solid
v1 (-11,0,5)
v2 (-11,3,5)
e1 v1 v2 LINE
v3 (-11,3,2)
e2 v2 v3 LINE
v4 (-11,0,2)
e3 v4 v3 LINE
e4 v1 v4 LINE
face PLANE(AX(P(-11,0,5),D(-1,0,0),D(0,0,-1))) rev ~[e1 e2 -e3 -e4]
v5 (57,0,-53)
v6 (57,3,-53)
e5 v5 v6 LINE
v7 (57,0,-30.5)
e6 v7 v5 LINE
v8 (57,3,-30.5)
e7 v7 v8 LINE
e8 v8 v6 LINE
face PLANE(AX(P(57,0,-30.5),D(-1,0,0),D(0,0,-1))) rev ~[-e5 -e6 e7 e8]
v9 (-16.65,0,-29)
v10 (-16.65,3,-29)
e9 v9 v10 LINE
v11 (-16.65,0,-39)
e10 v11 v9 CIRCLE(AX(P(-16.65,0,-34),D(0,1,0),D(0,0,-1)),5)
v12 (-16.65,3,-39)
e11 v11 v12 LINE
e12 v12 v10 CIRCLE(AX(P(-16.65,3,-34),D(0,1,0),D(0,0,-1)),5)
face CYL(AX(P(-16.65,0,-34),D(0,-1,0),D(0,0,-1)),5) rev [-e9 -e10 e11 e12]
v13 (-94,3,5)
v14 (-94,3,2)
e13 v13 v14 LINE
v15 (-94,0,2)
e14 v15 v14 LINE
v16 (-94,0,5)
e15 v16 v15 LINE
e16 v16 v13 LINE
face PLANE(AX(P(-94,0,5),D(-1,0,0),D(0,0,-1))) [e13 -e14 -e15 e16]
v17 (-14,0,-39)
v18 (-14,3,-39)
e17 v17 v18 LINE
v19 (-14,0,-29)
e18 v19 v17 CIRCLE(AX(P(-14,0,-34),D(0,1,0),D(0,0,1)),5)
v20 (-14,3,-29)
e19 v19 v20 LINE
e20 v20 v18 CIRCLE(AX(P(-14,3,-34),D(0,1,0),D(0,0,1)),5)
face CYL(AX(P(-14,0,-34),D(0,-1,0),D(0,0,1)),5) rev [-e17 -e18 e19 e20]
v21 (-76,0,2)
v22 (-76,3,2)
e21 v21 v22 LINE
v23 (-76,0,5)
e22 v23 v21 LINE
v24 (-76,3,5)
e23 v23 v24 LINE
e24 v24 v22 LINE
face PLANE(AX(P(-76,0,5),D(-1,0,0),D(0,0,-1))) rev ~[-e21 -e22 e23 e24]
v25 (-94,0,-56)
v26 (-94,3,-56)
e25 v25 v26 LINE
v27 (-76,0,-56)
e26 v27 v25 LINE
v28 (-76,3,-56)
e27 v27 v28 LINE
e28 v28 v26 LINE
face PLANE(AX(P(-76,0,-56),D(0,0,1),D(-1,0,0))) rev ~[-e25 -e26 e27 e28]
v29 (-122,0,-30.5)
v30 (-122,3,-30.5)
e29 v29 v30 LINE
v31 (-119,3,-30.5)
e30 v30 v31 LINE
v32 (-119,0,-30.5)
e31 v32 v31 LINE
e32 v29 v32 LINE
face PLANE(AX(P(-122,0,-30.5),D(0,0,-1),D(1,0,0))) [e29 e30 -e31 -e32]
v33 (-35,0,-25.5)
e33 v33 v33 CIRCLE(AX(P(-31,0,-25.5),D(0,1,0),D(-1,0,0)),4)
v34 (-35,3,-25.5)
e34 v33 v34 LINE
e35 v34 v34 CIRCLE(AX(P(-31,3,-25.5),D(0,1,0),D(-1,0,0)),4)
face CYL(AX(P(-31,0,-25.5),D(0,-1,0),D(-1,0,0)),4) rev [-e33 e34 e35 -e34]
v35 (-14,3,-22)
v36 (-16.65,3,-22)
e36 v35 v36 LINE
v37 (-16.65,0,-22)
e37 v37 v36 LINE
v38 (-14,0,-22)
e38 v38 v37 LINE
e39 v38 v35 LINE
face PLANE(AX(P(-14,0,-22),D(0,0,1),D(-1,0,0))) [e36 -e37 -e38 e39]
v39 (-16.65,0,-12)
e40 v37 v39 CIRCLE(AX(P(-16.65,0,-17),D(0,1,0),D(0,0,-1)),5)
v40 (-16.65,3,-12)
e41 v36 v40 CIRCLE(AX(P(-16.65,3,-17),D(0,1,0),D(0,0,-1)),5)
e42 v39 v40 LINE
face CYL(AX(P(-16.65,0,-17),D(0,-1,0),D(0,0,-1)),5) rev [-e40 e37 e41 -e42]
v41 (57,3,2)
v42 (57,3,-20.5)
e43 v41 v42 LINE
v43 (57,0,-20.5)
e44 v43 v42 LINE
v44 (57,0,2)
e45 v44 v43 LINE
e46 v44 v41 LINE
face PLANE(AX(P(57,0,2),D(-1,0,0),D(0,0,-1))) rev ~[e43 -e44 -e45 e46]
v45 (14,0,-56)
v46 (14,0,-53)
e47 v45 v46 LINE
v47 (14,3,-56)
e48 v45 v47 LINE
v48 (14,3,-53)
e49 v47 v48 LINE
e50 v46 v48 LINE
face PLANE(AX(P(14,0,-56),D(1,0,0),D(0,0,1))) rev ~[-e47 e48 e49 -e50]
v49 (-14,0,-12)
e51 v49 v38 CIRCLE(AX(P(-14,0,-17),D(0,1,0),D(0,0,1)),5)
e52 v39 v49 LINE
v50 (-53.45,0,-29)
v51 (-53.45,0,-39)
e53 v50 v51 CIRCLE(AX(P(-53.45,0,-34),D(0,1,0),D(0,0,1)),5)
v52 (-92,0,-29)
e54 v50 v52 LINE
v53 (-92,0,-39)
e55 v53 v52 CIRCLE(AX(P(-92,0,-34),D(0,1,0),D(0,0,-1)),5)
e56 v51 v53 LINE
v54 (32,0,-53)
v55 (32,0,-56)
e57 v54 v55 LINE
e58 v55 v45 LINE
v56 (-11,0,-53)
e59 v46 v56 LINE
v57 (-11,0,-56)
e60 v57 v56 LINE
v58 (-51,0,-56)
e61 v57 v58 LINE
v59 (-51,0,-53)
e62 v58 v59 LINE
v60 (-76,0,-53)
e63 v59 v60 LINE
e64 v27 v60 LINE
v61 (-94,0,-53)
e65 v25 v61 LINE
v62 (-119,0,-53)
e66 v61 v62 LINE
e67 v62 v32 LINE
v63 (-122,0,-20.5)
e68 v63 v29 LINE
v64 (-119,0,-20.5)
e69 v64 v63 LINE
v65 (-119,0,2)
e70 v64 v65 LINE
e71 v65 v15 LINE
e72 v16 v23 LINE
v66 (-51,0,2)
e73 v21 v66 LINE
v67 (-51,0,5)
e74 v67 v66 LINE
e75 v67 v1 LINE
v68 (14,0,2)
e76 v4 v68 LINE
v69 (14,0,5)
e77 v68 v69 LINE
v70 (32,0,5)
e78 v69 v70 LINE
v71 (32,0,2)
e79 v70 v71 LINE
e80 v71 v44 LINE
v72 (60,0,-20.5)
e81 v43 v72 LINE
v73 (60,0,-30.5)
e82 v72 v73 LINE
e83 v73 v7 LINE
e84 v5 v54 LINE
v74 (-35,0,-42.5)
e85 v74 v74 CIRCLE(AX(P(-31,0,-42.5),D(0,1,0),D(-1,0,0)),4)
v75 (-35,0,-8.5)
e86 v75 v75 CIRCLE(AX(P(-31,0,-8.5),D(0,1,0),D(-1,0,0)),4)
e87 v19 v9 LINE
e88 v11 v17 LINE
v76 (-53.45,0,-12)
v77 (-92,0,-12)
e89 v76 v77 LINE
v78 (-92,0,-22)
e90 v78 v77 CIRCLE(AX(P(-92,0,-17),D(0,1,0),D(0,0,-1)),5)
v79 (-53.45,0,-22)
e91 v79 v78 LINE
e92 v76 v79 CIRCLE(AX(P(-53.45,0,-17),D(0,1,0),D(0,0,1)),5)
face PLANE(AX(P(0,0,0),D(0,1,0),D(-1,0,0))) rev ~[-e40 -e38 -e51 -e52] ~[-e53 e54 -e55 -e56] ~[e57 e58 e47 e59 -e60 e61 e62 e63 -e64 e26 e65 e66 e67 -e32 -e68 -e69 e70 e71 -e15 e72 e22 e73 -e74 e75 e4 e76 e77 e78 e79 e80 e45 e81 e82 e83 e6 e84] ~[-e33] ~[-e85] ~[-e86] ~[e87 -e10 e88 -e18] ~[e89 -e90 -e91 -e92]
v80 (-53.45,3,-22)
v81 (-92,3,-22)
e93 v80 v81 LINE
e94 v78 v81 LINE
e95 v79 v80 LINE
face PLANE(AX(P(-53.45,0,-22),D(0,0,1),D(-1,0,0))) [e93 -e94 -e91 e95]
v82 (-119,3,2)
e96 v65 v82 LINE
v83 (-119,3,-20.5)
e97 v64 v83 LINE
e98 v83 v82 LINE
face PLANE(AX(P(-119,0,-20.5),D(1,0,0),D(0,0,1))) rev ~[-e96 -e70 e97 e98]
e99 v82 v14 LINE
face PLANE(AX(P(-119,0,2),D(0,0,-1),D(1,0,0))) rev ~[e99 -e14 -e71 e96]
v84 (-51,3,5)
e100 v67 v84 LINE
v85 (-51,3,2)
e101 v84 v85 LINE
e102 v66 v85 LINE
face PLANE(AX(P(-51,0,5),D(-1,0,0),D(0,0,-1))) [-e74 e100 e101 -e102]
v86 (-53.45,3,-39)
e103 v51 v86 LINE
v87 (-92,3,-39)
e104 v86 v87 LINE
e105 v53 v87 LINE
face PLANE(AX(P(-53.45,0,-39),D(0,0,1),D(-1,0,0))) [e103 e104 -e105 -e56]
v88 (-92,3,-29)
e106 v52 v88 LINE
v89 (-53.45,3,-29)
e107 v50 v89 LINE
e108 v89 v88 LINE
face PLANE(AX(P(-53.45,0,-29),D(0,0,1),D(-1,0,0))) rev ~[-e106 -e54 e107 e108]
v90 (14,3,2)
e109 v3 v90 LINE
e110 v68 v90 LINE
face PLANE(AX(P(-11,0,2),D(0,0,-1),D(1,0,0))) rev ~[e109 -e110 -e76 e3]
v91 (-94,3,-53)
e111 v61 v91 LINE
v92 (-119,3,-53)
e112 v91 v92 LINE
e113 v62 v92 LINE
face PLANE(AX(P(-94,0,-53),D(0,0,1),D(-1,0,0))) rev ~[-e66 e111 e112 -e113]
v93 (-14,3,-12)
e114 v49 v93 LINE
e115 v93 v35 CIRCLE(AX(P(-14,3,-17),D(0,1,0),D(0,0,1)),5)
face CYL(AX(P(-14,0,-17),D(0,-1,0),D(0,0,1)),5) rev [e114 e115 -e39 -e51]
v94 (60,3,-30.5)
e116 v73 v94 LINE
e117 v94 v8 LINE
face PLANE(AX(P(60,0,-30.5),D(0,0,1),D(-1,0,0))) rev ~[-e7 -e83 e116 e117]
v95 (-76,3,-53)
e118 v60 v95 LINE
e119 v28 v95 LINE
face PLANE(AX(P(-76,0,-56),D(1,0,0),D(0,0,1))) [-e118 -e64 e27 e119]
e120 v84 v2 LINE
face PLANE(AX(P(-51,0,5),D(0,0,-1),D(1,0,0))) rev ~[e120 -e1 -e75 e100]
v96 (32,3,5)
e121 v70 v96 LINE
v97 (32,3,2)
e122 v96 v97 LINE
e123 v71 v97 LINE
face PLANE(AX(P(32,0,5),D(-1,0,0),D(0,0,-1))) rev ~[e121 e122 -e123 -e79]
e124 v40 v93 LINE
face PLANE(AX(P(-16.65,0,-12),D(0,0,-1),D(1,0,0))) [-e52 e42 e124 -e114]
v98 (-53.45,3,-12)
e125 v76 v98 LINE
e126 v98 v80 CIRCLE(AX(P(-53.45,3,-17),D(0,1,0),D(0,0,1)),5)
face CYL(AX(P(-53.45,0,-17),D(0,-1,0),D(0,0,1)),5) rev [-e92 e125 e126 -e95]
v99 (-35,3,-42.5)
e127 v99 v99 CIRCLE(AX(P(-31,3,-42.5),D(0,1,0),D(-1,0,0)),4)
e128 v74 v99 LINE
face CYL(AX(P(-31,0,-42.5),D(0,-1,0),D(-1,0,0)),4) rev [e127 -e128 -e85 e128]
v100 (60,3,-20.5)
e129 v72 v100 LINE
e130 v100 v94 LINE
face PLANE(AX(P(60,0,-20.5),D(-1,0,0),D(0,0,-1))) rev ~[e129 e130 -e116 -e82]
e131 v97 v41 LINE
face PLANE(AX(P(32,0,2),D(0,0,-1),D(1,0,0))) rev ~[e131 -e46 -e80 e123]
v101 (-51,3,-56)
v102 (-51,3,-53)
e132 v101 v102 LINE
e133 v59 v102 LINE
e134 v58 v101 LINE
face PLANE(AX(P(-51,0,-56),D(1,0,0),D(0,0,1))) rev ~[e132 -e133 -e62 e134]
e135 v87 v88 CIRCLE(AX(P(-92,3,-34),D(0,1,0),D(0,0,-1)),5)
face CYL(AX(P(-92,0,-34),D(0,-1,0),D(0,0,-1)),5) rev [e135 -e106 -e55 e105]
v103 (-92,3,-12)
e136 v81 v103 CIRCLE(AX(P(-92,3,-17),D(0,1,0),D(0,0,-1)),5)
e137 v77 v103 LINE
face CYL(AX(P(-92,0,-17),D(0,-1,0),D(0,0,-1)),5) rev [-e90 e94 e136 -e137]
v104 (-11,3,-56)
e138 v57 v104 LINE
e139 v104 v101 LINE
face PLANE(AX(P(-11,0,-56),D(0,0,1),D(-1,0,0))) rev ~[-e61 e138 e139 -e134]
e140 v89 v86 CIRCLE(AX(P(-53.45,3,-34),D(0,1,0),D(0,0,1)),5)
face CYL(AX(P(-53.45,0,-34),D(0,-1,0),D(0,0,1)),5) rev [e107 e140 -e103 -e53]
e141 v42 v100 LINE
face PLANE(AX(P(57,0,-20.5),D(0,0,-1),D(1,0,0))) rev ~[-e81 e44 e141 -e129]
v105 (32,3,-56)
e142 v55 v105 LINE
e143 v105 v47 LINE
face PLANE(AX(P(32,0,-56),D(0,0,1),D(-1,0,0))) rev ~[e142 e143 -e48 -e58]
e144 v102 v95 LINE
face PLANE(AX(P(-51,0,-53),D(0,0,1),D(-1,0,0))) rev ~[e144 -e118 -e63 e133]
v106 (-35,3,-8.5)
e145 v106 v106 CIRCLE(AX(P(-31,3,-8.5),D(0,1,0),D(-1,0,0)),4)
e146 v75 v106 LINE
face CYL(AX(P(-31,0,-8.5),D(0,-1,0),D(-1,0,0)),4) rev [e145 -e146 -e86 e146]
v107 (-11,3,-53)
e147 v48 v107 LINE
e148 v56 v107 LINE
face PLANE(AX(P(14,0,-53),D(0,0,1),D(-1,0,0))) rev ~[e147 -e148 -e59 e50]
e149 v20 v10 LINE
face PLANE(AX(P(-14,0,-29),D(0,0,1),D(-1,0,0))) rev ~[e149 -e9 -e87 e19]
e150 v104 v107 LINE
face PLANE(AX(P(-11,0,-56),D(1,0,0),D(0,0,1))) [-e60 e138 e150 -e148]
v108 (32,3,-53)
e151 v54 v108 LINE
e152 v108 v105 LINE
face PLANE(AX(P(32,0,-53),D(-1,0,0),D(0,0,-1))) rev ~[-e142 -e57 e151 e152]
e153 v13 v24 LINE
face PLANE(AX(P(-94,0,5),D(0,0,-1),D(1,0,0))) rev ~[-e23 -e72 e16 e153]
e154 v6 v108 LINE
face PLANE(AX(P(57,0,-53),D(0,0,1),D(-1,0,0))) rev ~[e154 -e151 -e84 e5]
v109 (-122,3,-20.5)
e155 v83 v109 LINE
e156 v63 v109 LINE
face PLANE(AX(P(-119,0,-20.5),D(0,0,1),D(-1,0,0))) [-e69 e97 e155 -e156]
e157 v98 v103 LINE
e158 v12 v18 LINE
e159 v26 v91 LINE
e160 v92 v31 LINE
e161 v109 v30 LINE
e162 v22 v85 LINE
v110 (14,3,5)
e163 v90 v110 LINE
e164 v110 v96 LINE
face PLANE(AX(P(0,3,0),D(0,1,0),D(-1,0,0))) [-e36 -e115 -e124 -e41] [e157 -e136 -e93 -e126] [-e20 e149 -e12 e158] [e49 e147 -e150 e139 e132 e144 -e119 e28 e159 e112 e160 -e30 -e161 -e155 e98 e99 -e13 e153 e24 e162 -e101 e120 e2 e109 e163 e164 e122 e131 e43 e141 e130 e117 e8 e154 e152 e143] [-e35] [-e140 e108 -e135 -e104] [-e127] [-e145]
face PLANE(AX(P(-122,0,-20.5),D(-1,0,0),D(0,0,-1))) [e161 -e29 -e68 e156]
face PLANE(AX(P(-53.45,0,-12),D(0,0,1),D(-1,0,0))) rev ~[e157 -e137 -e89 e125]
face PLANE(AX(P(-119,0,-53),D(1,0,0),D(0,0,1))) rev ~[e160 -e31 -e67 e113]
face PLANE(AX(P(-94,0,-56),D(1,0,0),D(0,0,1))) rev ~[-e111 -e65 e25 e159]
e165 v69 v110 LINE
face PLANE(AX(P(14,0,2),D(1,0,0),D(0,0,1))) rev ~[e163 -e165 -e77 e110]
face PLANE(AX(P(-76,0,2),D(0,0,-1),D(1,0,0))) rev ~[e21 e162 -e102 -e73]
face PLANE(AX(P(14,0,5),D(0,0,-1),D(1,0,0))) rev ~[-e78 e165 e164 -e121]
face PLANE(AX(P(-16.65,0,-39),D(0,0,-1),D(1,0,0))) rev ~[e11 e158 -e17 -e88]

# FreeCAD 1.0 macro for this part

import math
import FreeCAD as App
import Part
import Sketcher

V = App.Vector
Q = App.Units.Quantity


def add_polygon(sketch, points):
    """Adds a closed chain of lines whose ends are joined by coincident constraints."""
    first, n = sketch.GeometryCount, len(points)
    for a, b in zip(points, points[1:] + points[:1]):
        sketch.addGeometry(Part.LineSegment(App.Vector(*a, 0), App.Vector(*b, 0)), False)
    for i in range(n):
        sketch.addConstraint(Sketcher.Constraint("Coincident", first + i, 2, first + (i + 1) % n, 1))

doc = App.newDocument("Part")
body = doc.addObject("PartDesign::Body", "Body")

# Sketch on XZ plane
sketch1 = body.newObject("Sketcher::SketchObject", "Sketch")
sketch1.AttachmentSupport = (doc.getObject("XZ_Plane"), [""])
sketch1.MapMode = "FlatFace"
add_polygon(sketch1, [(-51, 2), (-51, 5), (-11, 5), (-11, 2), (14, 2), (14, 5), (32, 5), (32, 2), (57, 2), (57, -20.5), (60, -20.5), (60, -30.5), (57, -30.5), (57, -53), (32, -53), (32, -56), (14, -56), (14, -53), (-11, -53), (-11, -56), (-51, -56), (-51, -53), (-76, -53), (-76, -56), (-94, -56), (-94, -53), (-119, -53), (-119, -30.5), (-122, -30.5), (-122, -20.5), (-119, -20.5), (-119, 2), (-94, 2), (-94, 5), (-76, 5), (-76, 2)])  # lines 0-35
sketch1.addGeometry(Part.ArcOfCircle(Part.Circle(V(-16.65, -34, 0), V(0, 0, 1), 5), math.radians(90), math.radians(270)), False)  # 36
sketch1.addGeometry(Part.LineSegment(V(-16.65, -39, 0), V(-14, -39, 0)), False)  # 37
sketch1.addGeometry(Part.ArcOfCircle(Part.Circle(V(-14, -34, 0), V(0, 0, 1), 5), math.radians(-90), math.radians(90)), False)  # 38
sketch1.addGeometry(Part.LineSegment(V(-14, -29, 0), V(-16.65, -29, 0)), False)  # 39
sketch1.addGeometry(Part.Circle(V(-31, -42.5, 0), V(0, 0, 1), 4), False)  # 40
sketch1.addGeometry(Part.ArcOfCircle(Part.Circle(V(-53.45, -34, 0), V(0, 0, 1), 5), math.radians(-90), math.radians(90)), False)  # 41
sketch1.addGeometry(Part.LineSegment(V(-53.45, -29, 0), V(-92, -29, 0)), False)  # 42
sketch1.addGeometry(Part.ArcOfCircle(Part.Circle(V(-92, -34, 0), V(0, 0, 1), 5), math.radians(90), math.radians(270)), False)  # 43
sketch1.addGeometry(Part.LineSegment(V(-92, -39, 0), V(-53.45, -39, 0)), False)  # 44
sketch1.addGeometry(Part.ArcOfCircle(Part.Circle(V(-14, -17, 0), V(0, 0, 1), 5), math.radians(-90), math.radians(90)), False)  # 45
sketch1.addGeometry(Part.LineSegment(V(-14, -12, 0), V(-16.65, -12, 0)), False)  # 46
sketch1.addGeometry(Part.ArcOfCircle(Part.Circle(V(-16.65, -17, 0), V(0, 0, 1), 5), math.radians(90), math.radians(270)), False)  # 47
sketch1.addGeometry(Part.LineSegment(V(-16.65, -22, 0), V(-14, -22, 0)), False)  # 48
sketch1.addGeometry(Part.Circle(V(-31, -25.5, 0), V(0, 0, 1), 4), False)  # 49
sketch1.addGeometry(Part.ArcOfCircle(Part.Circle(V(-53.45, -17, 0), V(0, 0, 1), 5), math.radians(-90), math.radians(90)), False)  # 50
sketch1.addGeometry(Part.LineSegment(V(-53.45, -12, 0), V(-92, -12, 0)), False)  # 51
sketch1.addGeometry(Part.ArcOfCircle(Part.Circle(V(-92, -17, 0), V(0, 0, 1), 5), math.radians(90), math.radians(270)), False)  # 52
sketch1.addGeometry(Part.LineSegment(V(-92, -22, 0), V(-53.45, -22, 0)), False)  # 53
sketch1.addGeometry(Part.Circle(V(-31, -8.5, 0), V(0, 0, 1), 4), False)  # 54
sketch1.addConstraint([
    Sketcher.Constraint("Tangent", 36, 2, 37, 1),
    Sketcher.Constraint("Tangent", 37, 2, 38, 1),
    Sketcher.Constraint("Tangent", 38, 2, 39, 1),
    Sketcher.Constraint("Tangent", 39, 2, 36, 1),
    Sketcher.Constraint("Tangent", 41, 2, 42, 1),
    Sketcher.Constraint("Tangent", 42, 2, 43, 1),
    Sketcher.Constraint("Tangent", 43, 2, 44, 1),
    Sketcher.Constraint("Tangent", 44, 2, 41, 1),
    Sketcher.Constraint("Tangent", 45, 2, 46, 1),
    Sketcher.Constraint("Tangent", 46, 2, 47, 1),
    Sketcher.Constraint("Tangent", 47, 2, 48, 1),
    Sketcher.Constraint("Tangent", 48, 2, 45, 1),
    Sketcher.Constraint("Tangent", 50, 2, 51, 1),
    Sketcher.Constraint("Tangent", 51, 2, 52, 1),
    Sketcher.Constraint("Tangent", 52, 2, 53, 1),
    Sketcher.Constraint("Tangent", 53, 2, 50, 1),
    Sketcher.Constraint("Vertical", 0),
    Sketcher.Constraint("Horizontal", 1),
    Sketcher.Constraint("Vertical", 2),
    Sketcher.Constraint("Horizontal", 3),
    Sketcher.Constraint("Vertical", 4),
    Sketcher.Constraint("Horizontal", 5),
    Sketcher.Constraint("Vertical", 6),
    Sketcher.Constraint("Horizontal", 7),
    Sketcher.Constraint("Vertical", 8),
    Sketcher.Constraint("Horizontal", 9),
    Sketcher.Constraint("Vertical", 10),
    Sketcher.Constraint("Horizontal", 11),
    Sketcher.Constraint("Vertical", 12),
    Sketcher.Constraint("Horizontal", 13),
    Sketcher.Constraint("Vertical", 14),
    Sketcher.Constraint("Horizontal", 15),
    Sketcher.Constraint("Vertical", 16),
    Sketcher.Constraint("Horizontal", 17),
    Sketcher.Constraint("Vertical", 18),
    Sketcher.Constraint("Horizontal", 19),
    Sketcher.Constraint("Vertical", 20),
    Sketcher.Constraint("Horizontal", 21),
    Sketcher.Constraint("Vertical", 22),
    Sketcher.Constraint("Horizontal", 23),
    Sketcher.Constraint("Vertical", 24),
    Sketcher.Constraint("Horizontal", 25),
    Sketcher.Constraint("Vertical", 26),
    Sketcher.Constraint("Horizontal", 27),
    Sketcher.Constraint("Vertical", 28),
    Sketcher.Constraint("Horizontal", 29),
    Sketcher.Constraint("Vertical", 30),
    Sketcher.Constraint("Horizontal", 31),
    Sketcher.Constraint("Vertical", 32),
    Sketcher.Constraint("Horizontal", 33),
    Sketcher.Constraint("Vertical", 34),
    Sketcher.Constraint("Horizontal", 35),
    Sketcher.Constraint("Horizontal", 37),
    Sketcher.Constraint("Horizontal", 39),
    Sketcher.Constraint("Horizontal", 42),
    Sketcher.Constraint("Horizontal", 44),
    Sketcher.Constraint("Horizontal", 46),
    Sketcher.Constraint("Horizontal", 48),
    Sketcher.Constraint("Horizontal", 51),
    Sketcher.Constraint("Horizontal", 53),
    Sketcher.Constraint("Equal", 38, 41),
    Sketcher.Constraint("Equal", 43, 45),
    Sketcher.Constraint("Equal", 40, 49),
    Sketcher.Constraint("Equal", 47, 50),
    Sketcher.Constraint("Equal", 49, 54),
    Sketcher.Constraint("Horizontal", 38, 3, 41, 3),
    Sketcher.Constraint("Horizontal", 47, 3, 50, 3),
    Sketcher.Constraint("Horizontal", 1, 2, 4, 2),
    Sketcher.Constraint("Horizontal", 3, 2, 6, 2),
    Sketcher.Constraint("Horizontal", 13, 2, 16, 2),
    Sketcher.Constraint("Horizontal", 15, 2, 18, 2),
    Sketcher.Constraint("Horizontal", 17, 2, 20, 2),
    Sketcher.Constraint("Horizontal", 19, 2, 22, 2),
    Sketcher.Constraint("Horizontal", 21, 2, 24, 2),
    Sketcher.Constraint("Horizontal", 11, 2, 26, 2),
    Sketcher.Constraint("Horizontal", 9, 2, 28, 2),
    Sketcher.Constraint("Horizontal", 7, 2, 30, 2),
    Sketcher.Constraint("Horizontal", 5, 2, 32, 2),
    Sketcher.Constraint("Horizontal", 31, 2, 34, 2),
    Sketcher.Constraint("Vertical", 38, 3, 45, 3),
    Sketcher.Constraint("Vertical", 36, 3, 47, 3),
    Sketcher.Constraint("Vertical", 40, 3, 49, 3),
    Sketcher.Constraint("Vertical", 41, 3, 50, 3),
    Sketcher.Constraint("Vertical", 43, 3, 52, 3),
    Sketcher.Constraint("Vertical", 49, 3, 54, 3),
    Sketcher.Constraint("Vertical", 8, 2, 11, 2),
    Sketcher.Constraint("Vertical", 6, 2, 13, 2),
    Sketcher.Constraint("Vertical", 4, 2, 15, 2),
    Sketcher.Constraint("Vertical", 2, 2, 17, 2),
    Sketcher.Constraint("Vertical", 0, 2, 19, 2),
    Sketcher.Constraint("Vertical", 26, 2, 29, 2),
    Sketcher.Constraint("Vertical", 24, 2, 31, 2),
    Sketcher.Constraint("Vertical", 22, 2, 33, 2),
    Sketcher.Constraint("Equal", 3, 7),
    Sketcher.Constraint("Equal", 17, 21),
    Sketcher.Constraint("Equal", 15, 23),
    Sketcher.Constraint("Equal", 21, 25),
    Sketcher.Constraint("Equal", 11, 27),
    Sketcher.Constraint("Equal", 29, 0),
    Sketcher.Constraint("Equal", 8, 12),
    Sketcher.Constraint("Equal", 6, 14),
    Sketcher.Constraint("Diameter", 40, Q("8 mm")),
    Sketcher.Constraint("Radius", 36, Q("5 mm")),
    Sketcher.Constraint("DistanceX", 1, 1, 1, 2, Q("40 mm")),
    Sketcher.Constraint("DistanceX", 3, 1, 3, 2, Q("25 mm")),
    Sketcher.Constraint("DistanceX", 5, 1, 5, 2, Q("18 mm")),
    Sketcher.Constraint("DistanceX", 9, 1, 9, 2, Q("3 mm")),
    Sketcher.Constraint("DistanceY", 10, 2, 10, 1, Q("10 mm")),
    Sketcher.Constraint("DistanceX", 38, 3, -1, 1, Q("14 mm")),
    Sketcher.Constraint("DistanceX", 40, 3, -1, 1, Q("31 mm")),
    Sketcher.Constraint("DistanceY", 45, 3, -1, 1, Q("17 mm")),
    Sketcher.Constraint("DistanceY", -1, 1, 0, 2, Q("5 mm")),
    Sketcher.Constraint("DistanceX", -1, 1, 3, 2, Q("14 mm")),
    Sketcher.Constraint("DistanceY", 8, 2, 8, 1, Q("22.5 mm")),
    Sketcher.Constraint("DistanceY", 36, 3, -1, 1, Q("34 mm")),
    Sketcher.Constraint("DistanceX", 43, 3, -1, 1, Q("92 mm")),
    Sketcher.Constraint("DistanceX", 37, 1, 37, 2, Q("2.65 mm")),
    Sketcher.Constraint("DistanceX", 42, 2, 42, 1, Q("38.55 mm")),
    Sketcher.Constraint("DistanceY", 40, 3, -1, 1, Q("42.5 mm")),
    Sketcher.Constraint("DistanceY", 49, 3, -1, 1, Q("25.5 mm")),
    Sketcher.Constraint("DistanceY", 54, 3, -1, 1, Q("8.5 mm")),
])
pad1 = body.newObject("PartDesign::Pad", "Pad")
pad1.Profile = sketch1
pad1.Length = 3
pad1.Reversed = True

doc.recompute()
